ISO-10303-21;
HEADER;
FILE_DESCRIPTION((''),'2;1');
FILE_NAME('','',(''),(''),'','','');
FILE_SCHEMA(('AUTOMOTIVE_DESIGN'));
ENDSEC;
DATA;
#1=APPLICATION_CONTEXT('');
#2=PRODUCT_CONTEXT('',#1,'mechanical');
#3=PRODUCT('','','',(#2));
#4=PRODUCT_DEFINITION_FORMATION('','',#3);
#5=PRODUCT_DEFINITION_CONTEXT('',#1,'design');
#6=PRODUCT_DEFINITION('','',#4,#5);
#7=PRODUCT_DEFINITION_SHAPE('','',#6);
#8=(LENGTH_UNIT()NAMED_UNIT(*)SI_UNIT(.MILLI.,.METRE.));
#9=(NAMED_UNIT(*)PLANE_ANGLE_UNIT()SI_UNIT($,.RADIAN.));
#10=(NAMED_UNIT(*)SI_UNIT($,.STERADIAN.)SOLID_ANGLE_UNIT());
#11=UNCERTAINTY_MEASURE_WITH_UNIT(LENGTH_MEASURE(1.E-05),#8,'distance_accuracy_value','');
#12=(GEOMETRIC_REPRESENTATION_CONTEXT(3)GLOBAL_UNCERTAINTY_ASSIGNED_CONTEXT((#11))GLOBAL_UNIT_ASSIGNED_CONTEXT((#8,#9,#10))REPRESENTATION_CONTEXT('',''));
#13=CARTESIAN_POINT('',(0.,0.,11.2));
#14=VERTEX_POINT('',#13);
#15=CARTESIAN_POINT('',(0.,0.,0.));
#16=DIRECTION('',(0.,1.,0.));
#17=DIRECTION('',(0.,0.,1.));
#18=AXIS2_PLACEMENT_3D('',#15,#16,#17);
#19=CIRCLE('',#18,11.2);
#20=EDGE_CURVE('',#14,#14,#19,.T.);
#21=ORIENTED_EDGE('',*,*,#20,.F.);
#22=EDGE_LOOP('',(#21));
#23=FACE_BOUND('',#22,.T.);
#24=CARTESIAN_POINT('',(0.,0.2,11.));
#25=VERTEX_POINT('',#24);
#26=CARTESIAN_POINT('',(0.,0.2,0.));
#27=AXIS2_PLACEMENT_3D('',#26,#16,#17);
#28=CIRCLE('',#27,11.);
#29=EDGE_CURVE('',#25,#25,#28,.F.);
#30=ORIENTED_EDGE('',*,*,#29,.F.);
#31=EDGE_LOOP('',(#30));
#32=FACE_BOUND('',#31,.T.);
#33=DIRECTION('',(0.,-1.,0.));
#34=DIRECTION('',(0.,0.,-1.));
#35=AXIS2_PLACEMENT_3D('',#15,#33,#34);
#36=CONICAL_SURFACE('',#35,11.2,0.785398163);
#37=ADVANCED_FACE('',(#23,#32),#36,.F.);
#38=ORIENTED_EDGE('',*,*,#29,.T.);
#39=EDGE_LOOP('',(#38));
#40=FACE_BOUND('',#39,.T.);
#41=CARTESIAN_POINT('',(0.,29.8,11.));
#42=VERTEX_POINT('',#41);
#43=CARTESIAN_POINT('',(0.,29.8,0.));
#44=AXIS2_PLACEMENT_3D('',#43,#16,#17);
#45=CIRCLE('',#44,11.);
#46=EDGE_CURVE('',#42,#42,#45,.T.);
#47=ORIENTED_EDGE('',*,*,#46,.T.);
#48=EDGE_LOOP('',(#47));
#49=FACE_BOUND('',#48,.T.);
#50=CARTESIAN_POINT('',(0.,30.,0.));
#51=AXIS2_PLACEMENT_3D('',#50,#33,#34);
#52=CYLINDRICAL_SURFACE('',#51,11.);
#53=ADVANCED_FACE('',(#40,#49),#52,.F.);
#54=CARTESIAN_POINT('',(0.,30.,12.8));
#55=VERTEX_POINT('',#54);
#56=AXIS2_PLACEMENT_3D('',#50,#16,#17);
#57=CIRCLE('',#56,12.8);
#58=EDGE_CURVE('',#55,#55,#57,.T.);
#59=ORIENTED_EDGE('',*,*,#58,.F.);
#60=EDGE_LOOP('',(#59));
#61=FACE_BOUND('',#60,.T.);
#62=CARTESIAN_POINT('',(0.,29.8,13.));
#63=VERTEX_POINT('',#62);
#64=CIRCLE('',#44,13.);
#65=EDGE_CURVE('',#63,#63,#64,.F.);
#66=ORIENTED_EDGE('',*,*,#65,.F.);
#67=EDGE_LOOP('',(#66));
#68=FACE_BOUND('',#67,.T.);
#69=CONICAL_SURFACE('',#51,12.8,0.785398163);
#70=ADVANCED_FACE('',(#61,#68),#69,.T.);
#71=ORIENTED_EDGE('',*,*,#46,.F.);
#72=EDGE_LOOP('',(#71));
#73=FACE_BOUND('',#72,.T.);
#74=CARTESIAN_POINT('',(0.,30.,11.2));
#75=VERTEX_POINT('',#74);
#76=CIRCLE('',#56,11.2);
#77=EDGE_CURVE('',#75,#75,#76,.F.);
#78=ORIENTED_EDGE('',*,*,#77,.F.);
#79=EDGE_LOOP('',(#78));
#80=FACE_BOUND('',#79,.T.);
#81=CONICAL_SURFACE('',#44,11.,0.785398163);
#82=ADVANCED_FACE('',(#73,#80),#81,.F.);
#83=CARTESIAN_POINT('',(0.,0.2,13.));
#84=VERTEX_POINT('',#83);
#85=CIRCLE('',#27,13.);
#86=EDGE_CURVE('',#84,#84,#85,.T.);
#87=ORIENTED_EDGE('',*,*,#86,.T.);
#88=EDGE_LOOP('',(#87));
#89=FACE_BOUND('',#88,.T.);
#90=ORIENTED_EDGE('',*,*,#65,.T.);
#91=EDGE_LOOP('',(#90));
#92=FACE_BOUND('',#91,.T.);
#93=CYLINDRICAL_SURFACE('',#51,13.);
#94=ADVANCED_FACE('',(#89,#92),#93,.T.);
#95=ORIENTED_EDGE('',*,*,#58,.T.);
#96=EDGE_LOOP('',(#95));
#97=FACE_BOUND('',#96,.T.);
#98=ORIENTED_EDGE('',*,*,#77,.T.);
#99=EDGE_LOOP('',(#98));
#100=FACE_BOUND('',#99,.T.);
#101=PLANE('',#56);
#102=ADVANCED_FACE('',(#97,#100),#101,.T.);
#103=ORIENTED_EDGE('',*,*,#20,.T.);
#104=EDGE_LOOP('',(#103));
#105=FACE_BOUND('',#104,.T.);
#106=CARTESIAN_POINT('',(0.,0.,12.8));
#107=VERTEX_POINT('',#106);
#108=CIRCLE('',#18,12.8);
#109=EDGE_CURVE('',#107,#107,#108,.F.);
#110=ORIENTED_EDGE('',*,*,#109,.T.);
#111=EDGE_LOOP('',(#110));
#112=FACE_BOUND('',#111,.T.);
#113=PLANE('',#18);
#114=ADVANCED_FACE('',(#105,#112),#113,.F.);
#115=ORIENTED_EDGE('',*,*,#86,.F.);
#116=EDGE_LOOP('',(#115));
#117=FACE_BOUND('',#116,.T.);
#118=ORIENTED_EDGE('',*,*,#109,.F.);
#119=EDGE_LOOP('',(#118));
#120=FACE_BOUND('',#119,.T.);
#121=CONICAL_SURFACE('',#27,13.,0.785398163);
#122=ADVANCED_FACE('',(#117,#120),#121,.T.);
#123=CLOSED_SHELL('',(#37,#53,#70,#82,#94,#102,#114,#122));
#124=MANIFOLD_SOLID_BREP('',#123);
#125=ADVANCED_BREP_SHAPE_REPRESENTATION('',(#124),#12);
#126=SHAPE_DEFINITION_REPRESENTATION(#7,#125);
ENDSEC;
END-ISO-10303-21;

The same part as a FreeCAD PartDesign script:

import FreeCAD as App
import Part
import Sketcher

V = App.Vector


def edges_at(feature, points):
    """Names of the edges that pass closest to the given points."""
    edges = feature.Shape.Edges
    near = lambda p: min(range(len(edges)), key=lambda i: edges[i].distToShape(Part.Vertex(*p))[0])
    return sorted({f"Edge{near(p) + 1}" for p in points})

doc = App.newDocument("Part")
body = doc.addObject("PartDesign::Body", "Body")

sketch1 = body.newObject("Sketcher::SketchObject", "Sketch")
sketch1.AttachmentSupport = (doc.getObject("XZ_Plane"), [""])
sketch1.MapMode = "FlatFace"
sketch1.addGeometry([
    Part.Circle(V(0, 0, 0), V(0, 0, 1), 13),
    Part.Circle(V(0, 0, 0), V(0, 0, 1), 11),
], False)
sketch1.addConstraint([
    Sketcher.Constraint("Coincident", 0, 3, -1, 1),
    Sketcher.Constraint("Coincident", 1, 3, -1, 1),
    Sketcher.Constraint("Diameter", 0, 26.0),
    Sketcher.Constraint("Diameter", 1, 22.0),
])
pad1 = body.newObject("PartDesign::Pad", "Pad")
pad1.Profile = sketch1
pad1.Length = 30
pad1.Reversed = True
doc.recompute()

chamfer = body.newObject("PartDesign::Chamfer", "Chamfer")
chamfer.Base = (pad1, edges_at(pad1, [
    (0, 0, -13),
    (0, 30, -13),
    (0, 0, -11),
    (0, 30, -11),
]))
chamfer.Size = 0.2

doc.recompute()
